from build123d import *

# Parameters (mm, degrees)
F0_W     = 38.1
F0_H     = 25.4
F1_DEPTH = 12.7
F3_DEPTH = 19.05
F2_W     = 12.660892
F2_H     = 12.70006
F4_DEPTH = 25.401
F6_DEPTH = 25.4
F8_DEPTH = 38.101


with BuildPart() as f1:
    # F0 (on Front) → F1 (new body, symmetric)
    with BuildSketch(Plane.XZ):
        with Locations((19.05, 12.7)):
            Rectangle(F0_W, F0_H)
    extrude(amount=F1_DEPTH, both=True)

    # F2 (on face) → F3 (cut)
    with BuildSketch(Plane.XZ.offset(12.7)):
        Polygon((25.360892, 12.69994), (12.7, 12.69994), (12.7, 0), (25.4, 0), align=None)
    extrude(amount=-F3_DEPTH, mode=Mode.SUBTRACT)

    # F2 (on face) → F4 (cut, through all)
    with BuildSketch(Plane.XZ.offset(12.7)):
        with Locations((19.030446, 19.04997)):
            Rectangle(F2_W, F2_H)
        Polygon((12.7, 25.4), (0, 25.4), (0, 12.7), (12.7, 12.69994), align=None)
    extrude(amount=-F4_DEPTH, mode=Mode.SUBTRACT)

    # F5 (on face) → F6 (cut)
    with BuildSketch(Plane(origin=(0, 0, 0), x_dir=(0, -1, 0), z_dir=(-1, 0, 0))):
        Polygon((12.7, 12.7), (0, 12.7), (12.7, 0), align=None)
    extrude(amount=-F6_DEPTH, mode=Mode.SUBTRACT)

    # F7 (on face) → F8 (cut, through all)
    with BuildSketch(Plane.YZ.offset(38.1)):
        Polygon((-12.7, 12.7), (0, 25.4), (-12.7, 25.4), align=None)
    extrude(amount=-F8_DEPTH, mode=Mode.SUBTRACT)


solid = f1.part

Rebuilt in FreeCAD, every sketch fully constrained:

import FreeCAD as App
import Part
import Sketcher
Q = App.Units.Quantity


def add_polygon(sketch, points):
    """Adds a closed chain of lines whose ends are joined by coincident constraints."""
    first, n = sketch.GeometryCount, len(points)
    for a, b in zip(points, points[1:] + points[:1]):
        sketch.addGeometry(Part.LineSegment(App.Vector(*a, 0), App.Vector(*b, 0)), False)
    for i in range(n):
        sketch.addConstraint(Sketcher.Constraint("Coincident", first + i, 2, first + (i + 1) % n, 1))

doc = App.newDocument("Part")
body = doc.addObject("PartDesign::Body", "Body")

# Sketch on XZ plane
sketch1 = doc.addObject("Sketcher::SketchObject", "Sketch")
body.addObject(sketch1)
sketch1.AttachmentSupport = (doc.XZ_Plane, [""])
sketch1.MapMode = "FlatFace"
add_polygon(sketch1, [(0, 25), (0, 0), (38, 0), (38, 25)])  # lines 0-3
sketch1.addConstraint([
    Sketcher.Constraint("Vertical", 0),
    Sketcher.Constraint("Horizontal", 1),
    Sketcher.Constraint("Vertical", 2),
    Sketcher.Constraint("Horizontal", 3),
    Sketcher.Constraint("Coincident", 0, 2, -1, 1),
    Sketcher.Constraint("DistanceY", 0, 2, 0, 1, Q("1 in")),
    Sketcher.Constraint("DistanceX", 1, 1, 1, 2, Q("1.5 in")),
])
pad1 = doc.addObject("PartDesign::Pad", "Pad")
body.addObject(pad1)
pad1.Profile = sketch1
pad1.Length = Q("1 in")
pad1.Midplane = True

# Sketch on XZ plane
sketch2 = doc.addObject("Sketcher::SketchObject", "Sketch001")
body.addObject(sketch2)
sketch2.AttachmentSupport = (doc.XZ_Plane, [""])
sketch2.MapMode = "FlatFace"
sketch2.AttachmentOffset = App.Placement(App.Vector(0, 0, 0.5 * 25.4), App.Rotation())
add_polygon(sketch2, [(25, 13), (13, 13), (13, 0), (25, 0)])  # lines 0-3
sketch2.addConstraint([
    Sketcher.Constraint("Horizontal", 0),
    Sketcher.Constraint("Vertical", 1),
    Sketcher.Constraint("Horizontal", 2),
    Sketcher.Constraint("PointOnObject", 1, 2, -1),
    Sketcher.Constraint("DistanceX", 2, 1, 2, 2, Q("0.5 in")),
    Sketcher.Constraint("DistanceX", -1, 1, 2, 2, Q("1 in")),
    Sketcher.Constraint("Distance", 3, Q("0.5 in")),
    Sketcher.Constraint("DistanceX", 0, 2, 0, 1, Q("12.660892 mm")),
])
pocket1 = doc.addObject("PartDesign::Pocket", "Pocket")
body.addObject(pocket1)
pocket1.Profile = sketch2
pocket1.Length = Q("0.75 in")

# Sketch on XZ plane
sketch3 = doc.addObject("Sketcher::SketchObject", "Sketch002")
body.addObject(sketch3)
sketch3.AttachmentSupport = (doc.XZ_Plane, [""])
sketch3.MapMode = "FlatFace"
sketch3.AttachmentOffset = App.Placement(App.Vector(0, 0, 0.5 * 25.4), App.Rotation())
add_polygon(sketch3, [(13, 13), (25, 13), (25, 25), (0, 25), (0, 13)])  # lines 0-4
sketch3.addConstraint([
    Sketcher.Constraint("Horizontal", 0),
    Sketcher.Constraint("Vertical", 1),
    Sketcher.Constraint("Horizontal", 2),
    Sketcher.Constraint("Vertical", 3),
    Sketcher.Constraint("PointOnObject", 2, 2, -2),
    Sketcher.Constraint("DistanceY", 3, 2, 3, 1, Q("0.5 in")),
    Sketcher.Constraint("DistanceY", -1, 1, 1, 2, Q("1 in")),
    Sketcher.Constraint("Distance", 4, Q("0.5 in")),
    Sketcher.Constraint("DistanceX", 2, 2, 2, 1, Q("25.360892 mm")),
    Sketcher.Constraint("DistanceY", 1, 1, 1, 2, Q("12.70006 mm")),
])
pocket2 = doc.addObject("PartDesign::Pocket", "Pocket001")
body.addObject(pocket2)
pocket2.Profile = sketch3
pocket2.Type = "ThroughAll"

# Sketch on YZ plane
sketch4 = doc.addObject("Sketcher::SketchObject", "Sketch003")
body.addObject(sketch4)
sketch4.AttachmentSupport = (doc.YZ_Plane, [""])
sketch4.MapMode = "FlatFace"
add_polygon(sketch4, [(-13, 13), (0, 13), (-13, 0)])  # lines 0-2
sketch4.addConstraint([
    Sketcher.Constraint("Horizontal", 0),
    Sketcher.Constraint("Vertical", 2),
    Sketcher.Constraint("PointOnObject", 0, 2, -2),
    Sketcher.Constraint("PointOnObject", 1, 2, -1),
    Sketcher.Constraint("Equal", 0, 2),
    Sketcher.Constraint("DistanceX", 0, 1, 0, 2, Q("0.5 in")),
])
pocket3 = doc.addObject("PartDesign::Pocket", "Pocket002")
body.addObject(pocket3)
pocket3.Profile = sketch4
pocket3.Length = Q("1 in")
pocket3.Reversed = True

# Sketch on YZ plane
sketch5 = doc.addObject("Sketcher::SketchObject", "Sketch004")
body.addObject(sketch5)
sketch5.AttachmentSupport = (doc.YZ_Plane, [""])
sketch5.MapMode = "FlatFace"
sketch5.AttachmentOffset = App.Placement(App.Vector(0, 0, 1.5 * 25.4), App.Rotation())
add_polygon(sketch5, [(-13, 13), (0, 25), (-13, 25)])  # lines 0-2
sketch5.addConstraint([
    Sketcher.Constraint("Horizontal", 1),
    Sketcher.Constraint("Vertical", 2),
    Sketcher.Constraint("PointOnObject", 0, 2, -2),
    Sketcher.Constraint("Equal", 1, 2),
    Sketcher.Constraint("DistanceX", 1, 2, 1, 1, Q("0.5 in")),
    Sketcher.Constraint("DistanceY", -1, 1, 0, 2, Q("1 in")),
])
pocket4 = doc.addObject("PartDesign::Pocket", "Pocket003")
body.addObject(pocket4)
pocket4.Profile = sketch5
pocket4.Type = "ThroughAll"

doc.recompute()
